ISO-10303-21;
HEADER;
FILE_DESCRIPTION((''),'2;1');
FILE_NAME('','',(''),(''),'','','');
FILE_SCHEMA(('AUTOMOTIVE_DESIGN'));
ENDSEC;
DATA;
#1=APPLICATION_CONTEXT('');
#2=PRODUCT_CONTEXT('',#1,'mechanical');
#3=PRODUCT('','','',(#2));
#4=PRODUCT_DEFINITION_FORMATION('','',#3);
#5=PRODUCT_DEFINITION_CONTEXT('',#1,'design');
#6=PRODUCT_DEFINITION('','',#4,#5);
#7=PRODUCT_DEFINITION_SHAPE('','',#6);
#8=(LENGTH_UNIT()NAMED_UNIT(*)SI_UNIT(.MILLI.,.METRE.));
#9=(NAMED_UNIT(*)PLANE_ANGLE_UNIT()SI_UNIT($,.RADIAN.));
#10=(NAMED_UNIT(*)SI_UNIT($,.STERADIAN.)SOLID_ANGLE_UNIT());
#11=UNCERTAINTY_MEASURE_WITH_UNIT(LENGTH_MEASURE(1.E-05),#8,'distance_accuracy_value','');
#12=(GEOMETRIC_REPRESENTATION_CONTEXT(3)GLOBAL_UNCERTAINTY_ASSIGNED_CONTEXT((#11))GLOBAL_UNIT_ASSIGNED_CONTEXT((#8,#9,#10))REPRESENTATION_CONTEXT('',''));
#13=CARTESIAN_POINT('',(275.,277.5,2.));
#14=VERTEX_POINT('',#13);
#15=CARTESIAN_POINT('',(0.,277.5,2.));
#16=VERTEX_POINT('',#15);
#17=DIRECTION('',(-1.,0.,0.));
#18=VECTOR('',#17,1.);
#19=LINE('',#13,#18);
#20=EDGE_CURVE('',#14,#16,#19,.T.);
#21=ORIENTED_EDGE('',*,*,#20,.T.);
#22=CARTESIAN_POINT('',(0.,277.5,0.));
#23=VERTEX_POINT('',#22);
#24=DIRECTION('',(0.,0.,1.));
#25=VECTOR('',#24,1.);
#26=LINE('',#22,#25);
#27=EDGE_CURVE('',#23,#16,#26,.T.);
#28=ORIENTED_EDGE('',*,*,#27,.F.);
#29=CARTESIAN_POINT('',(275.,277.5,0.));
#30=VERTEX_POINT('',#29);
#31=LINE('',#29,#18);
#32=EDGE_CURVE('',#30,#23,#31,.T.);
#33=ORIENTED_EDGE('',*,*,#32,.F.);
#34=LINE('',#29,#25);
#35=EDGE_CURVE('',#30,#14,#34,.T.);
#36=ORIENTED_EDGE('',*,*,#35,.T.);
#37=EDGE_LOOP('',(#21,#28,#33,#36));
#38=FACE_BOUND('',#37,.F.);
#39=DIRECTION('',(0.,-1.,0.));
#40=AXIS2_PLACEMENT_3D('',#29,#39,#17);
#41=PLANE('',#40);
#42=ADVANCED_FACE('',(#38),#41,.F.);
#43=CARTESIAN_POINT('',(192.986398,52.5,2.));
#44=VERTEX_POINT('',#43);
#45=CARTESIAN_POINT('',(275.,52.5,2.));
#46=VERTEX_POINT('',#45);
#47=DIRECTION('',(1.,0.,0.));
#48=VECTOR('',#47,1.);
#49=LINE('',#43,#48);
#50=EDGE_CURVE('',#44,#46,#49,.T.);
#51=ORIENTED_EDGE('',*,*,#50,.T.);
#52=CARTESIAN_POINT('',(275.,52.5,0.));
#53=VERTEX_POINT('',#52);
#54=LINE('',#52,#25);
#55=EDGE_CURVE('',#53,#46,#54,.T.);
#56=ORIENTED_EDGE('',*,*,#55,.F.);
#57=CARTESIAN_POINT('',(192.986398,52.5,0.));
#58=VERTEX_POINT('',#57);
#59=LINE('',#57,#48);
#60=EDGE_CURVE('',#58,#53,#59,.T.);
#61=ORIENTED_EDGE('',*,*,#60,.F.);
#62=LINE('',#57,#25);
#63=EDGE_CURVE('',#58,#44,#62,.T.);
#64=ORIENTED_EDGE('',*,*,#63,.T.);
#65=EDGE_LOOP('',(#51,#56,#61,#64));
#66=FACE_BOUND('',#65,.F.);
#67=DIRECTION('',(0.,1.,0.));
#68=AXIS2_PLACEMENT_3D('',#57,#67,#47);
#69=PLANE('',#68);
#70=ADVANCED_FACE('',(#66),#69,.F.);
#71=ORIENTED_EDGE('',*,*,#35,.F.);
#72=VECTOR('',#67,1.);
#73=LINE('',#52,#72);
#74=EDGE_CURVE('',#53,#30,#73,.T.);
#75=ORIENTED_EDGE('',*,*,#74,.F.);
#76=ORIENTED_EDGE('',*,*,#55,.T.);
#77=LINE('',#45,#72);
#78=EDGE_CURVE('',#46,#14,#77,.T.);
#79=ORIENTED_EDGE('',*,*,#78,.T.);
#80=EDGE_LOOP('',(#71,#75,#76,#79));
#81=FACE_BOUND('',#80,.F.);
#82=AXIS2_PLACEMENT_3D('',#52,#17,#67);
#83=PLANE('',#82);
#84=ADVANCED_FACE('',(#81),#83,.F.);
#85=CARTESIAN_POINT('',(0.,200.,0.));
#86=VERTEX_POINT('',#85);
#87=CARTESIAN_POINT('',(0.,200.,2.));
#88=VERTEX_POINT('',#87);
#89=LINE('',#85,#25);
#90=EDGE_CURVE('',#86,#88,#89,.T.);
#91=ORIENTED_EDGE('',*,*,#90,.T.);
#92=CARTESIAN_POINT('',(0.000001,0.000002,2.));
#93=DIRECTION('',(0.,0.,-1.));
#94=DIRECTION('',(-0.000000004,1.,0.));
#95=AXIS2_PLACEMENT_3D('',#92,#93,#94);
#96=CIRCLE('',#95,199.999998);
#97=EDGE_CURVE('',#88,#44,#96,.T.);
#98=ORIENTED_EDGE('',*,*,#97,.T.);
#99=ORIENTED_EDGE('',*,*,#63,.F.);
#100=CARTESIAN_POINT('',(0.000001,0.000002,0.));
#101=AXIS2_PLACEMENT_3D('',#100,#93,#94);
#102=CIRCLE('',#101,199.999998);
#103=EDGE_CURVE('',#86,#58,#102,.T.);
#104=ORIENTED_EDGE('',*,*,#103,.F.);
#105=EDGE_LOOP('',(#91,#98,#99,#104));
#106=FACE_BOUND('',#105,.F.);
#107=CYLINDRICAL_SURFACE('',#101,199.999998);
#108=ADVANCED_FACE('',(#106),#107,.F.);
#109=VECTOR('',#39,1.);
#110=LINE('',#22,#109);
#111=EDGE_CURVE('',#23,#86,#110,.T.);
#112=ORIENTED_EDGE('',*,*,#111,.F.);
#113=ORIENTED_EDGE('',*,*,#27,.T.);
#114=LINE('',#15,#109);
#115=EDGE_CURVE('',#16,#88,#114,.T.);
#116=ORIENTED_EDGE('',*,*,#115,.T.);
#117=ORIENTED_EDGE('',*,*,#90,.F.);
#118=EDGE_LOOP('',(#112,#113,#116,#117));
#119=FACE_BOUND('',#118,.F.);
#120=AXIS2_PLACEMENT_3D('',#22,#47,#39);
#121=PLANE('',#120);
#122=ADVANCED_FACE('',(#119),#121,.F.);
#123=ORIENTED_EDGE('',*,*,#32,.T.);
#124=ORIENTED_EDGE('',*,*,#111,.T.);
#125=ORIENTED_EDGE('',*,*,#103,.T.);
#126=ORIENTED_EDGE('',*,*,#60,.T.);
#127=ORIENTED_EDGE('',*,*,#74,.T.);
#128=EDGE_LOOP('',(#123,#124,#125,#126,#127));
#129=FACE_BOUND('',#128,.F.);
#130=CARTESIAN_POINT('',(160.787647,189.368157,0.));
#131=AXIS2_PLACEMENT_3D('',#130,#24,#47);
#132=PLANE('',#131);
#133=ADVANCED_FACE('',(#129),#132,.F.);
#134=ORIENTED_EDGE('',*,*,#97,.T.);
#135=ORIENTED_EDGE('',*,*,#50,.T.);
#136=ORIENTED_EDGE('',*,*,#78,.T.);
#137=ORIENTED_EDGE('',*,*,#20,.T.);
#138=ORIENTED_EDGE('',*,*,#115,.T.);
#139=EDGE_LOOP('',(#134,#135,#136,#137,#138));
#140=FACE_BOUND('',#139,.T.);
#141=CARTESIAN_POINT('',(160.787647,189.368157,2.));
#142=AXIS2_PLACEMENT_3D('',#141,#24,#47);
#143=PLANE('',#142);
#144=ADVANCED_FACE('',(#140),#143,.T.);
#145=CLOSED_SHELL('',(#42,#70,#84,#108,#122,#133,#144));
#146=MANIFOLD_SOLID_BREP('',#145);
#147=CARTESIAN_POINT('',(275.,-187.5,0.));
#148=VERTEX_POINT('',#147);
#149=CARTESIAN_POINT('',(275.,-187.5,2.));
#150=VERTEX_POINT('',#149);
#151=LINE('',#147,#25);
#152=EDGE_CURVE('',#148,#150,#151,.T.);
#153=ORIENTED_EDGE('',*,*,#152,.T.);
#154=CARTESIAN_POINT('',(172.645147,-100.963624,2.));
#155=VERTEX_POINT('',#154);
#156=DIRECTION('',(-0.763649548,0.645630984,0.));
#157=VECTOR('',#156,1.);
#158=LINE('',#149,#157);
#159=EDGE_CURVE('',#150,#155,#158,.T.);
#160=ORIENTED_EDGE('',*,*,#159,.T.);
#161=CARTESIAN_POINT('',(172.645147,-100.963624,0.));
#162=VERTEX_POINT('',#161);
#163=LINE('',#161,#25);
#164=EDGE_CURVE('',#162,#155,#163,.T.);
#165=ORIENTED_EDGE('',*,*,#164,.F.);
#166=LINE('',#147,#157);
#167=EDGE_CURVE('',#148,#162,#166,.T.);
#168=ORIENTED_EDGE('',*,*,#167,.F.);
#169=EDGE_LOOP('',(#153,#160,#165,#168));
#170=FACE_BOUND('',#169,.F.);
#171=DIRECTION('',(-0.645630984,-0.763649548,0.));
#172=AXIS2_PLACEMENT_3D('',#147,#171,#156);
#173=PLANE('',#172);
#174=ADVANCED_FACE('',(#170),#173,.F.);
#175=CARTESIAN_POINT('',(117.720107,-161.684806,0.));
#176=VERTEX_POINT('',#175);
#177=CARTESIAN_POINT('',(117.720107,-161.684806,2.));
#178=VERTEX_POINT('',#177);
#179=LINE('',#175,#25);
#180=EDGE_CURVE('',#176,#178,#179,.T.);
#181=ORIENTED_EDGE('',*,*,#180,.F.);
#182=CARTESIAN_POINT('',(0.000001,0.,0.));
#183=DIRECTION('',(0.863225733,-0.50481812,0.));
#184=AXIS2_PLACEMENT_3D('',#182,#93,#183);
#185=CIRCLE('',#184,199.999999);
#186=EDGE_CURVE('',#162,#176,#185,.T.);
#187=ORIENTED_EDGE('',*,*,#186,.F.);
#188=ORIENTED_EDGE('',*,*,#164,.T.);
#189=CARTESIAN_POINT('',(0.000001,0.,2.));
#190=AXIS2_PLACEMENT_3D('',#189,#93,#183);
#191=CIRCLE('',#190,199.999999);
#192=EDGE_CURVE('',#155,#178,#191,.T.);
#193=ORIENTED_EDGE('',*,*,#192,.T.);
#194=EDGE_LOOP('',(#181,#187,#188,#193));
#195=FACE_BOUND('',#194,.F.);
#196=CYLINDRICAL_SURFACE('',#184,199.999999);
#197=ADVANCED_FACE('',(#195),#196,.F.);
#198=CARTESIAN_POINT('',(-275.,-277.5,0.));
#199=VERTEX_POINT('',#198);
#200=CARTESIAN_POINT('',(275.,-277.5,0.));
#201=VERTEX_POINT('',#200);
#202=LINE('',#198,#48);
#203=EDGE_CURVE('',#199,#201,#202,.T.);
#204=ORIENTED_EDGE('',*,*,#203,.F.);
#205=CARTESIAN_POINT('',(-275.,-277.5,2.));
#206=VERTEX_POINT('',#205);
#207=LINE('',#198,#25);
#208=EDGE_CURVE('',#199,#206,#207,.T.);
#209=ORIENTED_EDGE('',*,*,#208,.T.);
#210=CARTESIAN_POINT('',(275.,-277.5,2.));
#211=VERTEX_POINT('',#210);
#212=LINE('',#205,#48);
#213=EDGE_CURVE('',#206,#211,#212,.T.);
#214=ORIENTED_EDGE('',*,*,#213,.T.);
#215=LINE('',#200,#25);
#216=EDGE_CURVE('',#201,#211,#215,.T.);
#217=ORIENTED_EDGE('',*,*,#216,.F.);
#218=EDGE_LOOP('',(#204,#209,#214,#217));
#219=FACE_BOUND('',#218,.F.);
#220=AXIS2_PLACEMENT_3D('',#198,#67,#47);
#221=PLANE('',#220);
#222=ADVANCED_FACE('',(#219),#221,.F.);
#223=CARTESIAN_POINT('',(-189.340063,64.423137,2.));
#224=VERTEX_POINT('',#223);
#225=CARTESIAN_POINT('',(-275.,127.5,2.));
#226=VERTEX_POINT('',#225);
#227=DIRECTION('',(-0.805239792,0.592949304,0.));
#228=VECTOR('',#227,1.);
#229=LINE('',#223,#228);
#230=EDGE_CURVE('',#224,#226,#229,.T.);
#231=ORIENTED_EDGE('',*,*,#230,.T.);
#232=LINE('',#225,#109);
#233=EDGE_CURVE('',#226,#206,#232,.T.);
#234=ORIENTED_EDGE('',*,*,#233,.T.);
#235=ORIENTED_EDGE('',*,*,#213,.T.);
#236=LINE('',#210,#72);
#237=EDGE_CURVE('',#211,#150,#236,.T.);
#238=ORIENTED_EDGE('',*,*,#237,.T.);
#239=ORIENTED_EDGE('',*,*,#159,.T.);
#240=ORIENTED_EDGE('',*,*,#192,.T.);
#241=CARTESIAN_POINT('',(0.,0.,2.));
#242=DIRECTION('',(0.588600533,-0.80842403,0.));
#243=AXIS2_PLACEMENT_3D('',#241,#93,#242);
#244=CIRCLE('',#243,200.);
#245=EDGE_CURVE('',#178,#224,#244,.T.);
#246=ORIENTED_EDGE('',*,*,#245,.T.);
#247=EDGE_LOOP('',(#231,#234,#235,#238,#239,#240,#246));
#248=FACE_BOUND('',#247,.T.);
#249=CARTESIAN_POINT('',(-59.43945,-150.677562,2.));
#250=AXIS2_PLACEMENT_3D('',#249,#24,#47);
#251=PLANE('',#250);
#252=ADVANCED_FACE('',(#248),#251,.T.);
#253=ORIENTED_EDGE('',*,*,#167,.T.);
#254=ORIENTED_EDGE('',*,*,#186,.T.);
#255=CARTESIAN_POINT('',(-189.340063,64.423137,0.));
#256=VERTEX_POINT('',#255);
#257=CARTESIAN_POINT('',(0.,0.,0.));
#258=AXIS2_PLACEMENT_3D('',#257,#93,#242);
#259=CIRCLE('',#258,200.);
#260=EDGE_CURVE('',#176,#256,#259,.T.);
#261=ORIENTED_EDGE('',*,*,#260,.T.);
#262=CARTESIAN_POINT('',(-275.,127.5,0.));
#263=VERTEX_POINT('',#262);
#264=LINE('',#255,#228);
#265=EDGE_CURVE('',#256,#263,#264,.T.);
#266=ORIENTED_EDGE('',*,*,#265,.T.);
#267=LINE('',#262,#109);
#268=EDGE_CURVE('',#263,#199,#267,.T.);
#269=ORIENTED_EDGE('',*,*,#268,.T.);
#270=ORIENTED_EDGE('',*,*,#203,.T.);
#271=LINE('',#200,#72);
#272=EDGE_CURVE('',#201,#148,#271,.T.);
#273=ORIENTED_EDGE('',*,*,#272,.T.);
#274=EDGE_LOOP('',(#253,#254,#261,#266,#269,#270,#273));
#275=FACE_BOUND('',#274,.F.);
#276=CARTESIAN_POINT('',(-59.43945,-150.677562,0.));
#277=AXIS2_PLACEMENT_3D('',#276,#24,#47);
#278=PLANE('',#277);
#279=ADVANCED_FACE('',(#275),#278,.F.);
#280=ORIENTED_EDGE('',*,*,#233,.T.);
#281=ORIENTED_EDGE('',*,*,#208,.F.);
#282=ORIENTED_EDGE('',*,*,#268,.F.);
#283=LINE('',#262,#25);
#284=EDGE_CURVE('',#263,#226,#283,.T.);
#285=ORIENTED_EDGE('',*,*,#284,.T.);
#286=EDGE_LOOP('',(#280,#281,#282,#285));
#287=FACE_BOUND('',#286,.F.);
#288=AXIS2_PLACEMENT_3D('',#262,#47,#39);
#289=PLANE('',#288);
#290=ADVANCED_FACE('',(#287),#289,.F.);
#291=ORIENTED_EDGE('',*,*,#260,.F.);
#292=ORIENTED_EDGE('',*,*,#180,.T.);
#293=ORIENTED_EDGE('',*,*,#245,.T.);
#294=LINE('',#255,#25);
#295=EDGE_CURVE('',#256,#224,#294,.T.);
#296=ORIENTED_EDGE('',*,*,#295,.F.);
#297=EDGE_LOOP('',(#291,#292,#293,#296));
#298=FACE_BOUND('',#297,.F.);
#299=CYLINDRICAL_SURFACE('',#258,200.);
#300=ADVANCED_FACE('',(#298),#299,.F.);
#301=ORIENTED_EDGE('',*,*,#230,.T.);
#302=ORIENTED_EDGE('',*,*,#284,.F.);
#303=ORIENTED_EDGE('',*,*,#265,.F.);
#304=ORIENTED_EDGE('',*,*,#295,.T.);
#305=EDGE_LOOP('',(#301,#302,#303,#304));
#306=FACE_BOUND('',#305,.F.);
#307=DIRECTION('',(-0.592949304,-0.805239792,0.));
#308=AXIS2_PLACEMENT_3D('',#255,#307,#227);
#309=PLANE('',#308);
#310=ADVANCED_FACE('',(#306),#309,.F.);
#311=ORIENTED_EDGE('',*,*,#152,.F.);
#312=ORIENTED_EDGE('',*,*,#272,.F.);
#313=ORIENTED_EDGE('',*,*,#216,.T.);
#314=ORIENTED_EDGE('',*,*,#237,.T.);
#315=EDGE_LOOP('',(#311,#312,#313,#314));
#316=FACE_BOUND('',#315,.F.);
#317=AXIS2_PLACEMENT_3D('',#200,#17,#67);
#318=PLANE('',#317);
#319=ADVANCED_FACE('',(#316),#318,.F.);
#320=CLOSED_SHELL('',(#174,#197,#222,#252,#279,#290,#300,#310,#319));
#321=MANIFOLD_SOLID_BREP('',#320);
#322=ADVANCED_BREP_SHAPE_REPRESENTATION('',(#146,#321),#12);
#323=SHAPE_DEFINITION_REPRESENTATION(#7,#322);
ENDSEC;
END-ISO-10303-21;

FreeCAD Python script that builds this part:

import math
import FreeCAD as App
import Part
import Sketcher
from FreeCAD import Vector

doc = App.newDocument("Part")
params = doc.addObject("Spreadsheet::Sheet", "Params")
for row, (alias, value) in enumerate([
    ("sketch1_radius", "199.999999 mm"),
    ("sketch1_width", "550 mm"),
    ("sketch1_height", "405 mm"),
    ("sketch1_height2", "90 mm"),
    ("sketch1_height3", "225 mm"),
    ("pad1_length", "2 mm"),
], start=1):
    params.set(f"A{row}", alias)
    params.set(f"B{row}", "=" + value)
    params.setAlias(f"B{row}", alias)

body = doc.addObject("PartDesign::Body", "Body")
body.AllowCompound = True

# Sketch on XY plane
sketch1 = body.newObject("Sketcher::SketchObject", "Sketch")
sketch1.AttachmentSupport = (doc.getObject("XY_Plane"), [""])
sketch1.MapMode = "FlatFace"
sketch1.addGeometry(Part.LineSegment(Vector(-275, 127.5, 0), Vector(-275, -277.5, 0)), False)
sketch1.addGeometry(Part.LineSegment(Vector(-275, -277.5, 0), Vector(275, -277.5, 0)), False)
sketch1.addGeometry(Part.LineSegment(Vector(275, -277.5, 0), Vector(275, -187.5, 0)), False)
sketch1.addGeometry(Part.LineSegment(Vector(275, -187.5, 0), Vector(172.645147, -100.963624, 0)), False)
sketch1.addGeometry(Part.ArcOfCircle(Part.Circle(Vector(0.000001, 0, 0), Vector(0, 0, 1), 199.999999), math.radians(-53.94224), math.radians(-30.31928)), False)
sketch1.addGeometry(Part.ArcOfCircle(Part.Circle(Vector(0, 0, 0), Vector(0, 0, 1), 200), math.radians(161.209079), math.radians(306.057761)), False)
sketch1.addGeometry(Part.LineSegment(Vector(-189.340063, 64.423137, 0), Vector(-275, 127.5, 0)), False)
sketch1.addGeometry(Part.LineSegment(Vector(192.986398, 52.5, 0), Vector(275, 52.5, 0)), False)
sketch1.addGeometry(Part.LineSegment(Vector(275, 52.5, 0), Vector(275, 277.5, 0)), False)
sketch1.addGeometry(Part.LineSegment(Vector(275, 277.5, 0), Vector(0, 277.5, 0)), False)
sketch1.addGeometry(Part.LineSegment(Vector(0, 277.5, 0), Vector(0, 200, 0)), False)
sketch1.addGeometry(Part.ArcOfCircle(Part.Circle(Vector(0.000001, 0.000002, 0), Vector(0, 0, 1), 199.999998), math.radians(15.218455), math.radians(90)), False)
sketch1.addConstraint(Sketcher.Constraint("Coincident", 0, 2, 1, 1))
sketch1.addConstraint(Sketcher.Constraint("Coincident", 1, 2, 2, 1))
sketch1.addConstraint(Sketcher.Constraint("Coincident", 2, 2, 3, 1))
sketch1.addConstraint(Sketcher.Constraint("Coincident", 3, 2, 4, 2))
sketch1.addConstraint(Sketcher.Constraint("Tangent", 4, 1, 5, 2))
sketch1.addConstraint(Sketcher.Constraint("Coincident", 5, 1, 6, 1))
sketch1.addConstraint(Sketcher.Constraint("Coincident", 6, 2, 0, 1))
sketch1.addConstraint(Sketcher.Constraint("Coincident", 7, 2, 8, 1))
sketch1.addConstraint(Sketcher.Constraint("Coincident", 8, 2, 9, 1))
sketch1.addConstraint(Sketcher.Constraint("Coincident", 9, 2, 10, 1))
sketch1.addConstraint(Sketcher.Constraint("Coincident", 10, 2, 11, 2))
sketch1.addConstraint(Sketcher.Constraint("Coincident", 11, 1, 7, 1))
sketch1.addConstraint(Sketcher.Constraint("Vertical", 0))
sketch1.addConstraint(Sketcher.Constraint("Horizontal", 1))
sketch1.addConstraint(Sketcher.Constraint("Vertical", 2))
sketch1.addConstraint(Sketcher.Constraint("Horizontal", 7))
sketch1.addConstraint(Sketcher.Constraint("Vertical", 8))
sketch1.addConstraint(Sketcher.Constraint("Horizontal", 9))
sketch1.addConstraint(Sketcher.Constraint("Vertical", 10))
sketch1.addConstraint(Sketcher.Constraint("Coincident", 4, 3, -1, 1))
sketch1.addConstraint(Sketcher.Constraint("Coincident", 11, 3, -1, 1))
sketch1.addConstraint(Sketcher.Constraint("Equal", 4, 5))
sketch1.addConstraint(Sketcher.Constraint("Equal", 5, 11))
sketch1.addConstraint(Sketcher.Constraint("Symmetric", 0, 2, 8, 2, -1, 1))
sketch1.addConstraint(Sketcher.Constraint("PointOnObject", 9, 2, -2))
sketch1.addConstraint(Sketcher.Constraint("Vertical", 2, 2, 7, 2))
sketch1.addConstraint(Sketcher.Constraint("Radius", 4, 199.999999))
sketch1.addConstraint(Sketcher.Constraint("DistanceX", 1, 1, 1, 2, 550.0))
sketch1.addConstraint(Sketcher.Constraint("DistanceY", 0, 2, 0, 1, 405.0))
sketch1.addConstraint(Sketcher.Constraint("DistanceY", 2, 1, 2, 2, 90.0))
sketch1.addConstraint(Sketcher.Constraint("DistanceY", 8, 1, 8, 2, 225.0))
sketch1.addConstraint(Sketcher.Constraint("DistanceY", 10, 2, 10, 1, 77.5))
sketch1.addConstraint(Sketcher.Constraint("Distance", 6, 106.378172))
sketch1.addConstraint(Sketcher.Constraint("DistanceX", 4, 1, 3, 2, 54.92504))
sketch1.addConstraint(Sketcher.Constraint("DistanceY", 4, 1, 3, 2, 60.721182))
sketch1.setExpression("Constraints[26]", "Params.sketch1_radius")
sketch1.setExpression("Constraints[27]", "Params.sketch1_width")
sketch1.setExpression("Constraints[28]", "Params.sketch1_height")
sketch1.setExpression("Constraints[29]", "Params.sketch1_height2")
sketch1.setExpression("Constraints[30]", "Params.sketch1_height3")
pad1 = body.newObject("PartDesign::Pad", "Pad")
pad1.Profile = sketch1
pad1.setExpression("Length", "Params.pad1_length")

doc.recompute()
